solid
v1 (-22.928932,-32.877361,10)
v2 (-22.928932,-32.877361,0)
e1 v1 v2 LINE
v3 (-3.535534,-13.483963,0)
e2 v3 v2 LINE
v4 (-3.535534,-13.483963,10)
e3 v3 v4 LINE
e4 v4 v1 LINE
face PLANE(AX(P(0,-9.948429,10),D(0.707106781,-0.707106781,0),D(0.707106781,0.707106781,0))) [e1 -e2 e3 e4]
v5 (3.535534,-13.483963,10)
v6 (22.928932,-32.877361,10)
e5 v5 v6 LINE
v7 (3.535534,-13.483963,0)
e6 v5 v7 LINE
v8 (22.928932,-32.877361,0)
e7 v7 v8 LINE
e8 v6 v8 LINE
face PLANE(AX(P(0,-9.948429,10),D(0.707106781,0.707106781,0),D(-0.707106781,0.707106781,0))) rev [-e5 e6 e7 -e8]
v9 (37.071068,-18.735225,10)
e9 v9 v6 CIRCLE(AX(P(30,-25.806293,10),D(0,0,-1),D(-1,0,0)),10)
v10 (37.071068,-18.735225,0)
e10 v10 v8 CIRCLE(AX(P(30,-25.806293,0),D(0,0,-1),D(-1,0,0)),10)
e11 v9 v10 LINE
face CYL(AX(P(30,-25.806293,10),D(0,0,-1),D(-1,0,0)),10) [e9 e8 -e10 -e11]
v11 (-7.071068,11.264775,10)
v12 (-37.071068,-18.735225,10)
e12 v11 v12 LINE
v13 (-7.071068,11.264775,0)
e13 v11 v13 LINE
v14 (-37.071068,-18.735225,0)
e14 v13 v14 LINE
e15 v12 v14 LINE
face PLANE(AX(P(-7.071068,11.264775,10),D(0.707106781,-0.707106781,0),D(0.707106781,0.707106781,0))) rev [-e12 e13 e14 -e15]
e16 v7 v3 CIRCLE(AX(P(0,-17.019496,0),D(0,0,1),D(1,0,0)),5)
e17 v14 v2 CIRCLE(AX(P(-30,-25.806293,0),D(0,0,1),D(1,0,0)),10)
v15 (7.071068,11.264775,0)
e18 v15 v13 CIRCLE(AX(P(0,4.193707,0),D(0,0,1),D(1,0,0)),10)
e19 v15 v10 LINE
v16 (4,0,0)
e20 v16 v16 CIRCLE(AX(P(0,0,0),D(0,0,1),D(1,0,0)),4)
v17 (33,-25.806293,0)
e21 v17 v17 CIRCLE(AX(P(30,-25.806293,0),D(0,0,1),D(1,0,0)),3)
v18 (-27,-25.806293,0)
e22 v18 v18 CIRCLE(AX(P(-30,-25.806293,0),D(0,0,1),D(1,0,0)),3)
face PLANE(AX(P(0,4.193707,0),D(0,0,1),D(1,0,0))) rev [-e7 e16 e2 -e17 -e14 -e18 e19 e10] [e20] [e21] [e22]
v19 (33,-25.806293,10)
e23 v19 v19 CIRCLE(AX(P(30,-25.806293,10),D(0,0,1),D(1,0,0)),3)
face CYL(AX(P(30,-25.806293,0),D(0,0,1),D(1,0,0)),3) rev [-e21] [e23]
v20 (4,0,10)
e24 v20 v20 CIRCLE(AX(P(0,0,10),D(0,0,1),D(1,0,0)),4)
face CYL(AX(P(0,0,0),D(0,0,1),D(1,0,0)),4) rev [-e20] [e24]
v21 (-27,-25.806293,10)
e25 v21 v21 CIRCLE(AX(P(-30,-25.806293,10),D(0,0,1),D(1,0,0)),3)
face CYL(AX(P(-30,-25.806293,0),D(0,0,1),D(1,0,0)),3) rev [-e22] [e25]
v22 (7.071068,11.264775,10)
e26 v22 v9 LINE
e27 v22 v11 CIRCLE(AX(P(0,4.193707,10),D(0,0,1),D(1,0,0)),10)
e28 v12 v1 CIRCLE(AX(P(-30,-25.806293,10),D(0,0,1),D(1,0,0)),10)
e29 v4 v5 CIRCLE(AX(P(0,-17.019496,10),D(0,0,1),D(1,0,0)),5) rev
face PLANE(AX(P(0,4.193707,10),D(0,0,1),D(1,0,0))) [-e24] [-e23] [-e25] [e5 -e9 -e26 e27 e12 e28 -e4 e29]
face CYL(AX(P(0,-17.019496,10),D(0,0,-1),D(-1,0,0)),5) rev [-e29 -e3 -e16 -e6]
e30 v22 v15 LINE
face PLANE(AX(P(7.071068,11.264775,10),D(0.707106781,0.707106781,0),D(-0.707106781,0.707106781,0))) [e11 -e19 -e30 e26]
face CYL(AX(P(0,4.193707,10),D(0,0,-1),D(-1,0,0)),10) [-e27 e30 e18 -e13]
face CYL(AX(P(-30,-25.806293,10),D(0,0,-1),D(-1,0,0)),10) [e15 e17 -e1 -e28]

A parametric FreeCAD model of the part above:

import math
import FreeCAD as App
import Part
import Sketcher

V = App.Vector


def edges_at(feature, points):
    """Names of the edges that pass closest to the given points."""
    edges = feature.Shape.Edges
    near = lambda p: min(range(len(edges)), key=lambda i: edges[i].distToShape(Part.Vertex(*p))[0])
    return sorted({f"Edge{near(p) + 1}" for p in points})

doc = App.newDocument("Part")
params = doc.addObject("Spreadsheet::Sheet", "Params")
for row, (alias, value) in enumerate([
    ("sketch1_radius", "10 mm"),
    ("pad1_length", "10 mm"),
    ("sketch2_diameter", "8 mm"),
    ("sketch2_diameter2", "6 mm"),
    ("pocket1_length", "10 mm"),
    ("fillet_radius", "5 mm"),
], start=1):
    params.set(f"A{row}", alias)
    params.set(f"B{row}", "=" + value)
    params.setAlias(f"B{row}", alias)

body = doc.addObject("PartDesign::Body", "Body")

# Sketch on XY plane
sketch1 = body.newObject("Sketcher::SketchObject", "Sketch")
sketch1.AttachmentSupport = (doc.getObject("XY_Plane"), [""])
sketch1.MapMode = "FlatFace"
sketch1.addGeometry([
    Part.LineSegment(V(-7.071068, 11.264775, 0), V(-37.071068, -18.735225, 0)),  # 0
    Part.ArcOfCircle(Part.Circle(V(-30, -25.806293, 0), V(0, 0, 1), 10), math.radians(135), math.radians(315)),  # 1
    Part.LineSegment(V(-22.928932, -32.877361, 0), V(0, -9.948429, 0)),  # 2
    Part.LineSegment(V(0, -9.948429, 0), V(22.928932, -32.877361, 0)),  # 3
    Part.ArcOfCircle(Part.Circle(V(30, -25.806293, 0), V(0, 0, 1), 10), math.radians(-135), math.radians(45)),  # 4
    Part.LineSegment(V(37.071068, -18.735225, 0), V(7.071068, 11.264775, 0)),  # 5
    Part.ArcOfCircle(Part.Circle(V(0, 4.193707, 0), V(0, 0, 1), 10), math.radians(45), math.radians(135)),  # 6
], False)
sketch1.addConstraint([
    Sketcher.Constraint("Tangent", 0, 2, 1, 1),
    Sketcher.Constraint("Tangent", 1, 2, 2, 1),
    Sketcher.Constraint("Coincident", 2, 2, 3, 1),
    Sketcher.Constraint("Tangent", 3, 2, 4, 1),
    Sketcher.Constraint("Tangent", 4, 2, 5, 1),
    Sketcher.Constraint("Tangent", 5, 2, 6, 1),
    Sketcher.Constraint("Tangent", 6, 2, 0, 1),
    Sketcher.Constraint("Equal", 1, 4),
    Sketcher.Constraint("Equal", 4, 6),
    Sketcher.Constraint("Symmetric", 1, 3, 4, 3, -2),
    Sketcher.Constraint("PointOnObject", 6, 3, -2),
    Sketcher.Constraint("PointOnObject", 2, 2, -2),
    Sketcher.Constraint("Parallel", 0, 2),
    Sketcher.Constraint("Perpendicular", 2, 3),
    Sketcher.Constraint("Radius", 1, 10.0),
    Sketcher.Constraint("DistanceX", 1, 3, -1, 1, 30.0),
    Sketcher.Constraint("DistanceY", 1, 2, -1, 1, 32.877361),
])
sketch1.setExpression("Constraints[14]", "Params.sketch1_radius")
pad1 = body.newObject("PartDesign::Pad", "Pad")
pad1.Profile = sketch1
pad1.setExpression("Length", "Params.pad1_length")

# Sketch on XY plane
sketch2 = body.newObject("Sketcher::SketchObject", "Sketch001")
sketch2.AttachmentSupport = (doc.getObject("XY_Plane"), [""])
sketch2.MapMode = "FlatFace"
sketch2.AttachmentOffset = App.Placement(V(0, 0, 10), App.Rotation())
sketch2.addGeometry([
    Part.Circle(V(0, 0, 0), V(0, 0, 1), 4),
    Part.Circle(V(-30, -25.806293, 0), V(0, 0, 1), 3),
    Part.Circle(V(30, -25.806293, 0), V(0, 0, 1), 3),
], False)
sketch2.addConstraint([
    Sketcher.Constraint("Coincident", 0, 3, -1, 1),
    Sketcher.Constraint("Equal", 1, 2),
    Sketcher.Constraint("Symmetric", 1, 3, 2, 3, -2),
    Sketcher.Constraint("Diameter", 0, 8.0),
    Sketcher.Constraint("Diameter", 1, 6.0),
    Sketcher.Constraint("DistanceX", 1, 3, -1, 1, 30.0),
    Sketcher.Constraint("DistanceY", 1, 3, -1, 1, 25.806293),
])
sketch2.setExpression("Constraints[3]", "Params.sketch2_diameter")
sketch2.setExpression("Constraints[4]", "Params.sketch2_diameter2")
pocket1 = body.newObject("PartDesign::Pocket", "Pocket")
pocket1.Profile = sketch2
pocket1.setExpression("Length", "Params.pocket1_length")
doc.recompute()

fillet = body.newObject("PartDesign::Fillet", "Fillet")
fillet.Base = (pocket1, edges_at(pocket1, [(0, -9.948, 5)]))
fillet.setExpression("Radius", "Params.fillet_radius")

doc.recompute()
